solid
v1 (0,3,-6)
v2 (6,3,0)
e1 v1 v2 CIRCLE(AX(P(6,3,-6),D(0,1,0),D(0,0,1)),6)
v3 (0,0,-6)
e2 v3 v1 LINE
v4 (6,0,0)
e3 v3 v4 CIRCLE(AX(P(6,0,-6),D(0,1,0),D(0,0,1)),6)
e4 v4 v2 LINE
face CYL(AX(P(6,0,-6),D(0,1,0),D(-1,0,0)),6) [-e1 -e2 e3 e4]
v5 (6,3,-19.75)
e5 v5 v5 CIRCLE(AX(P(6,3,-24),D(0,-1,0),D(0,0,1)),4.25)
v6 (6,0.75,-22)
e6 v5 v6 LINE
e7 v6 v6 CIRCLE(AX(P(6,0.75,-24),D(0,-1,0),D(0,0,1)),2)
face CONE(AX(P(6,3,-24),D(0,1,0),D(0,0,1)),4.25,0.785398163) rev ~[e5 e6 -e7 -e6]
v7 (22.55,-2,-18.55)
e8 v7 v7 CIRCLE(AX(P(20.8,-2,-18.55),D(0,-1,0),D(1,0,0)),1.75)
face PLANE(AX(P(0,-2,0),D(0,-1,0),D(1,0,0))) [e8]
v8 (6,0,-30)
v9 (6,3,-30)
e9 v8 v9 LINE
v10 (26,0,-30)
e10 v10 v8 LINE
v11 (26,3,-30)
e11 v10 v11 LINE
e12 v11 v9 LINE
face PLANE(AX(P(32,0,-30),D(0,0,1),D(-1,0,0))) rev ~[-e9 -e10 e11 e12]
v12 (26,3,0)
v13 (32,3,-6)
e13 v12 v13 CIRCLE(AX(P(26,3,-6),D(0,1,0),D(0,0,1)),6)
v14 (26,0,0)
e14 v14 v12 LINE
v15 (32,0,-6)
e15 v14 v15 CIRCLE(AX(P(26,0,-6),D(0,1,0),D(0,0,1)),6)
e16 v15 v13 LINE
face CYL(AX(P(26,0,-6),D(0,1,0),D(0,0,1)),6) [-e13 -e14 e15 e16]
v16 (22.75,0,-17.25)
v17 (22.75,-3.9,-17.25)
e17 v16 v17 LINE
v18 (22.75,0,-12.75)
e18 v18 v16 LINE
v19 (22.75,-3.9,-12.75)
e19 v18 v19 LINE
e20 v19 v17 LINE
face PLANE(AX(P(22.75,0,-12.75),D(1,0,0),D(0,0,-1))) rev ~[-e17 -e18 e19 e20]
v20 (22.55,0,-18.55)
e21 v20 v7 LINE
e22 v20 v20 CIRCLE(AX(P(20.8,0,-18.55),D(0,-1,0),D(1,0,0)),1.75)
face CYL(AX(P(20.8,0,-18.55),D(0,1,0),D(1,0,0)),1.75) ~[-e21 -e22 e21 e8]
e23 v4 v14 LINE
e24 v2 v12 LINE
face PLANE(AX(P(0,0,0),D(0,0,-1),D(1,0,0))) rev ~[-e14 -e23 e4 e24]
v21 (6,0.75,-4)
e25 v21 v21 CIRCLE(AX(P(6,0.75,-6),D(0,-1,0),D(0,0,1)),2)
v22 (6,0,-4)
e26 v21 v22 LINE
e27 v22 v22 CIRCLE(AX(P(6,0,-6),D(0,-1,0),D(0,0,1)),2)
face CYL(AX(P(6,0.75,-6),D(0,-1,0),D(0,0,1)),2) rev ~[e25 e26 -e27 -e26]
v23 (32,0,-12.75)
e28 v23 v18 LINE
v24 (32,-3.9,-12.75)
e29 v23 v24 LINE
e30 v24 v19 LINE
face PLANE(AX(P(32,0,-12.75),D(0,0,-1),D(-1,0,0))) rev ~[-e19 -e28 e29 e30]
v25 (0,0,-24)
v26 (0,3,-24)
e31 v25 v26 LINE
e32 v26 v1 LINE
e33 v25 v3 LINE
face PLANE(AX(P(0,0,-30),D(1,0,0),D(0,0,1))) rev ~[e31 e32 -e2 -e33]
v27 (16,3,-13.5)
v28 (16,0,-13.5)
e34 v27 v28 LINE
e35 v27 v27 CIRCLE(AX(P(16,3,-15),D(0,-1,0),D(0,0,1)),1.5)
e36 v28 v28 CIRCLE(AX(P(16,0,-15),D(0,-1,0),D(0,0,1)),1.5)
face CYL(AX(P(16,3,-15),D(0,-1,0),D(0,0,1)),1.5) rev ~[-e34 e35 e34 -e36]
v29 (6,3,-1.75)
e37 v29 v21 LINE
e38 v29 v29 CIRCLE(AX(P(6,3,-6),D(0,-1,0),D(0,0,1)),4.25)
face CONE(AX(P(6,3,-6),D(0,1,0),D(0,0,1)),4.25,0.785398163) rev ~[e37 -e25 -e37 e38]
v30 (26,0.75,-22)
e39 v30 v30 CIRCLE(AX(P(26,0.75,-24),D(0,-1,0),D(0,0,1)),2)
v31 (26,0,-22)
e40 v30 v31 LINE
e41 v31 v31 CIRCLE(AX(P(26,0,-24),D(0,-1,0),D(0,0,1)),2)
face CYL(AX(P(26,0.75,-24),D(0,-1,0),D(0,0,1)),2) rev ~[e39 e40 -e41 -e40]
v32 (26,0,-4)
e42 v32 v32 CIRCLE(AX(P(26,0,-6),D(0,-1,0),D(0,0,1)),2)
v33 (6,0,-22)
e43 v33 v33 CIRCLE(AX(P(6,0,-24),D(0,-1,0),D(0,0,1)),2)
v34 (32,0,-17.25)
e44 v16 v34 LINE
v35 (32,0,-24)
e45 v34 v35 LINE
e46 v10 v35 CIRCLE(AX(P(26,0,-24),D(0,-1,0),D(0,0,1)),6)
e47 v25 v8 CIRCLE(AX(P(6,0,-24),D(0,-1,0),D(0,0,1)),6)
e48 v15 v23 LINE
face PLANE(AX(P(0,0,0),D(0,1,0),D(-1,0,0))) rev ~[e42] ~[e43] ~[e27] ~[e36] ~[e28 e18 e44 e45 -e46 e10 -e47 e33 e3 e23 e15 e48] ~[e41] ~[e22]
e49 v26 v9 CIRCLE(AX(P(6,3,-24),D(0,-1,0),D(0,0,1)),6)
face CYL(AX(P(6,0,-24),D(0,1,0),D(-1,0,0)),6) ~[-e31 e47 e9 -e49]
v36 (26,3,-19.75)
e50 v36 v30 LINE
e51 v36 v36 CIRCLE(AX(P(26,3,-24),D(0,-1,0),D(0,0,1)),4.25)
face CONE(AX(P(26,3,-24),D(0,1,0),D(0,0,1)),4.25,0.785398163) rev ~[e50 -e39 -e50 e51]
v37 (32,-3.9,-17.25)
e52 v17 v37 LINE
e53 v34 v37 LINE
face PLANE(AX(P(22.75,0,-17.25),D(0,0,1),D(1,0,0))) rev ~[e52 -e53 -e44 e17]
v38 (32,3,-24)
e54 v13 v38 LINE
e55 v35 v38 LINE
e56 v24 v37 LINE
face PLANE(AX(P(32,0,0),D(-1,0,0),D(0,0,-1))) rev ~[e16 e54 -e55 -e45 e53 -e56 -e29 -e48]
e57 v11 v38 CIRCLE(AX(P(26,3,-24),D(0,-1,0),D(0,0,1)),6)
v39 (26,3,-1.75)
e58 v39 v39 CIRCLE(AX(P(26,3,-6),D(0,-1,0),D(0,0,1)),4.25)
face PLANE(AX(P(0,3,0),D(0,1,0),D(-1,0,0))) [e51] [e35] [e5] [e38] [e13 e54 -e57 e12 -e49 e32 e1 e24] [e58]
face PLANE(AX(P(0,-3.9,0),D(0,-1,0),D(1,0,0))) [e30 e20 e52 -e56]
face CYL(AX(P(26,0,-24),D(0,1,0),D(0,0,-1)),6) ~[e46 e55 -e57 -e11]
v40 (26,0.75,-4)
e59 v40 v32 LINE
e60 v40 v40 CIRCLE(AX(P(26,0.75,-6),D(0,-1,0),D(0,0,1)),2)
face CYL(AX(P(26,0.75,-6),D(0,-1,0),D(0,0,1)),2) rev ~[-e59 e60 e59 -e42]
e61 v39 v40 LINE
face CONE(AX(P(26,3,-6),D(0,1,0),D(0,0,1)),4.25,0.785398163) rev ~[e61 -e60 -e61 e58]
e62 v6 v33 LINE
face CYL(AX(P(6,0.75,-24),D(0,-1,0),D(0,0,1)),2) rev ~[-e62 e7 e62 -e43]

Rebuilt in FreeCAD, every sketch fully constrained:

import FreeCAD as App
import Part
import Sketcher
from FreeCAD import Vector
Q = App.Units.Quantity


def edges_at(feature, points):
    """Names of the edges that pass closest to the given points."""
    edges = feature.Shape.Edges
    near = lambda p: min(range(len(edges)), key=lambda i: edges[i].distToShape(Part.Vertex(*p))[0])
    return sorted({f"Edge{near(p) + 1}" for p in points})

doc = App.newDocument("Part")
params = doc.addObject("Spreadsheet::Sheet", "Params")
for row, (alias, value) in enumerate([
    ("sketch1_width", "32 mm"),
    ("sketch1_height", "30 mm"),
    ("pad1_length", "3 mm"),
    ("sketch2_diameter", "4 mm"),
    ("hole_diameter", "4 mm"),
    ("hole_csink_diameter", "8.5 mm"),
    ("sketch3_height", "4.5 mm"),
    ("sketch3_width", "9.25 mm"),
    ("pad2_length", "3.9 mm"),
    ("sketch4_diameter", "3 mm"),
    ("hole2_diameter", "3 mm"),
    ("sketch5_diameter", "3.5 mm"),
    ("pad3_length", "2 mm"),
    ("fillet_radius", "6 mm"),
], start=1):
    params.set(f"A{row}", alias)
    params.set(f"B{row}", "=" + value)
    params.setAlias(f"B{row}", alias)

body = doc.addObject("PartDesign::Body", "Body")

sketch1 = body.newObject("Sketcher::SketchObject", "Sketch")
sketch1.AttachmentSupport = (doc.getObject("XZ_Plane"), [""])
sketch1.MapMode = "FlatFace"
sketch1.addGeometry([
    Part.LineSegment(Vector(0, -30, 0), Vector(0, 0, 0)),
    Part.LineSegment(Vector(0, 0, 0), Vector(32, 0, 0)),
    Part.LineSegment(Vector(32, 0, 0), Vector(32, -30, 0)),
    Part.LineSegment(Vector(32, -30, 0), Vector(0, -30, 0)),
], False)
sketch1.addConstraint([
    Sketcher.Constraint("Coincident", 0, 2, 1, 1),
    Sketcher.Constraint("Coincident", 1, 2, 2, 1),
    Sketcher.Constraint("Coincident", 2, 2, 3, 1),
    Sketcher.Constraint("Coincident", 3, 2, 0, 1),
    Sketcher.Constraint("Vertical", 0),
    Sketcher.Constraint("Horizontal", 1),
    Sketcher.Constraint("Vertical", 2),
    Sketcher.Constraint("Horizontal", 3),
    Sketcher.Constraint("Coincident", 0, 2, -1, 1),
    Sketcher.Constraint("DistanceX", 1, 1, 1, 2, Q("32 mm")),
    Sketcher.Constraint("DistanceY", 0, 1, 0, 2, Q("30 mm")),
])
sketch1.setExpression("Constraints[9]", "Params.sketch1_width")
sketch1.setExpression("Constraints[10]", "Params.sketch1_height")
pad1 = body.newObject("PartDesign::Pad", "Pad")
pad1.Profile = sketch1
pad1.setExpression("Length", "Params.pad1_length")
pad1.Reversed = True

sketch2 = body.newObject("Sketcher::SketchObject", "Sketch001")
sketch2.AttachmentSupport = (doc.getObject("XZ_Plane"), [""])
sketch2.MapMode = "FlatFace"
sketch2.AttachmentOffset = App.Placement(Vector(0, 0, -3), App.Rotation())
sketch2.addGeometry([
    Part.Circle(Vector(6, -24, 0), Vector(0, 0, 1), 2),
    Part.Circle(Vector(6, -6, 0), Vector(0, 0, 1), 2),
    Part.Circle(Vector(26, -6, 0), Vector(0, 0, 1), 2),
    Part.Circle(Vector(26, -24, 0), Vector(0, 0, 1), 2),
], False)
sketch2.addConstraint([
    Sketcher.Constraint("Equal", 0, 1),
    Sketcher.Constraint("Equal", 1, 2),
    Sketcher.Constraint("Equal", 2, 3),
    Sketcher.Constraint("Horizontal", 1, 3, 2, 3),
    Sketcher.Constraint("Horizontal", 0, 3, 3, 3),
    Sketcher.Constraint("Vertical", 0, 3, 1, 3),
    Sketcher.Constraint("Vertical", 2, 3, 3, 3),
    Sketcher.Constraint("Diameter", 0, Q("4 mm")),
    Sketcher.Constraint("DistanceX", -1, 1, 0, 3, Q("6 mm")),
    Sketcher.Constraint("DistanceY", 0, 3, -1, 1, Q("24 mm")),
    Sketcher.Constraint("DistanceY", 1, 3, -1, 1, Q("6 mm")),
    Sketcher.Constraint("DistanceX", -1, 1, 2, 3, Q("26 mm")),
])
sketch2.setExpression("Constraints[7]", "Params.sketch2_diameter")
doc.recompute()
hole = body.newObject("PartDesign::Hole", "Hole")
hole.Profile = sketch2
hole.ThreadType = "None"
hole.setExpression("Diameter", "Params.hole_diameter")
hole.DepthType = "ThroughAll"
hole.HoleCutType = "Countersink"
hole.setExpression("HoleCutDiameter", "Params.hole_csink_diameter")
hole.HoleCutCountersinkAngle = 90
hole.Reversed = True

sketch3 = body.newObject("Sketcher::SketchObject", "Sketch002")
sketch3.AttachmentSupport = (doc.getObject("XZ_Plane"), [""])
sketch3.MapMode = "FlatFace"
sketch3.addGeometry([
    Part.LineSegment(Vector(32, -17.2, 0), Vector(32, -12.8, 0)),
    Part.LineSegment(Vector(32, -12.8, 0), Vector(22.8, -12.8, 0)),
    Part.LineSegment(Vector(22.8, -12.8, 0), Vector(22.8, -17.2, 0)),
    Part.LineSegment(Vector(22.8, -17.2, 0), Vector(32, -17.2, 0)),
], False)
sketch3.addConstraint([
    Sketcher.Constraint("Coincident", 0, 2, 1, 1),
    Sketcher.Constraint("Coincident", 1, 2, 2, 1),
    Sketcher.Constraint("Coincident", 2, 2, 3, 1),
    Sketcher.Constraint("Coincident", 3, 2, 0, 1),
    Sketcher.Constraint("Vertical", 0),
    Sketcher.Constraint("Horizontal", 1),
    Sketcher.Constraint("Vertical", 2),
    Sketcher.Constraint("Horizontal", 3),
    Sketcher.Constraint("DistanceY", 0, 1, 0, 2, Q("4.5 mm")),
    Sketcher.Constraint("DistanceX", 1, 2, 1, 1, Q("9.25 mm")),
    Sketcher.Constraint("DistanceX", -1, 1, 0, 2, Q("32 mm")),
    Sketcher.Constraint("DistanceY", 0, 2, -1, 1, Q("12.75 mm")),
])
sketch3.setExpression("Constraints[8]", "Params.sketch3_height")
sketch3.setExpression("Constraints[9]", "Params.sketch3_width")
pad2 = body.newObject("PartDesign::Pad", "Pad001")
pad2.Profile = sketch3
pad2.setExpression("Length", "Params.pad2_length")

sketch4 = body.newObject("Sketcher::SketchObject", "Sketch003")
sketch4.AttachmentSupport = (doc.getObject("XZ_Plane"), [""])
sketch4.MapMode = "FlatFace"
sketch4.AttachmentOffset = App.Placement(Vector(0, 0, -3), App.Rotation())
sketch4.addGeometry(Part.Circle(Vector(16, -15, 0), Vector(0, 0, 1), 1.5), False)
sketch4.addConstraint([
    Sketcher.Constraint("Diameter", 0, Q("3 mm")),
    Sketcher.Constraint("DistanceX", -1, 1, 0, 3, Q("16 mm")),
    Sketcher.Constraint("DistanceY", 0, 3, -1, 1, Q("15 mm")),
])
sketch4.setExpression("Constraints[0]", "Params.sketch4_diameter")
doc.recompute()
hole2 = body.newObject("PartDesign::Hole", "Hole001")
hole2.Profile = sketch4
hole2.ThreadType = "None"
hole2.setExpression("Diameter", "Params.hole2_diameter")
hole2.DepthType = "ThroughAll"
hole2.Reversed = True

sketch5 = body.newObject("Sketcher::SketchObject", "Sketch004")
sketch5.AttachmentSupport = (doc.getObject("XZ_Plane"), [""])
sketch5.MapMode = "FlatFace"
sketch5.addGeometry(Part.Circle(Vector(20.8, -18.6, 0), Vector(0, 0, 1), 1.8), False)
sketch5.addConstraint([
    Sketcher.Constraint("Diameter", 0, Q("3.5 mm")),
    Sketcher.Constraint("DistanceX", -1, 1, 0, 3, Q("20.8 mm")),
    Sketcher.Constraint("DistanceY", 0, 3, -1, 1, Q("18.55 mm")),
])
sketch5.setExpression("Constraints[0]", "Params.sketch5_diameter")
pad3 = body.newObject("PartDesign::Pad", "Pad002")
pad3.Profile = sketch5
pad3.setExpression("Length", "Params.pad3_length")
doc.recompute()

fillet = body.newObject("PartDesign::Fillet", "Fillet")
fillet.Base = (pad3, edges_at(pad3, [
    (0, 1.5, 0),
    (32, 1.5, 0),
    (0, 1.5, -30),
    (32, 1.5, -30),
]))
fillet.setExpression("Radius", "Params.fillet_radius")

doc.recompute()
